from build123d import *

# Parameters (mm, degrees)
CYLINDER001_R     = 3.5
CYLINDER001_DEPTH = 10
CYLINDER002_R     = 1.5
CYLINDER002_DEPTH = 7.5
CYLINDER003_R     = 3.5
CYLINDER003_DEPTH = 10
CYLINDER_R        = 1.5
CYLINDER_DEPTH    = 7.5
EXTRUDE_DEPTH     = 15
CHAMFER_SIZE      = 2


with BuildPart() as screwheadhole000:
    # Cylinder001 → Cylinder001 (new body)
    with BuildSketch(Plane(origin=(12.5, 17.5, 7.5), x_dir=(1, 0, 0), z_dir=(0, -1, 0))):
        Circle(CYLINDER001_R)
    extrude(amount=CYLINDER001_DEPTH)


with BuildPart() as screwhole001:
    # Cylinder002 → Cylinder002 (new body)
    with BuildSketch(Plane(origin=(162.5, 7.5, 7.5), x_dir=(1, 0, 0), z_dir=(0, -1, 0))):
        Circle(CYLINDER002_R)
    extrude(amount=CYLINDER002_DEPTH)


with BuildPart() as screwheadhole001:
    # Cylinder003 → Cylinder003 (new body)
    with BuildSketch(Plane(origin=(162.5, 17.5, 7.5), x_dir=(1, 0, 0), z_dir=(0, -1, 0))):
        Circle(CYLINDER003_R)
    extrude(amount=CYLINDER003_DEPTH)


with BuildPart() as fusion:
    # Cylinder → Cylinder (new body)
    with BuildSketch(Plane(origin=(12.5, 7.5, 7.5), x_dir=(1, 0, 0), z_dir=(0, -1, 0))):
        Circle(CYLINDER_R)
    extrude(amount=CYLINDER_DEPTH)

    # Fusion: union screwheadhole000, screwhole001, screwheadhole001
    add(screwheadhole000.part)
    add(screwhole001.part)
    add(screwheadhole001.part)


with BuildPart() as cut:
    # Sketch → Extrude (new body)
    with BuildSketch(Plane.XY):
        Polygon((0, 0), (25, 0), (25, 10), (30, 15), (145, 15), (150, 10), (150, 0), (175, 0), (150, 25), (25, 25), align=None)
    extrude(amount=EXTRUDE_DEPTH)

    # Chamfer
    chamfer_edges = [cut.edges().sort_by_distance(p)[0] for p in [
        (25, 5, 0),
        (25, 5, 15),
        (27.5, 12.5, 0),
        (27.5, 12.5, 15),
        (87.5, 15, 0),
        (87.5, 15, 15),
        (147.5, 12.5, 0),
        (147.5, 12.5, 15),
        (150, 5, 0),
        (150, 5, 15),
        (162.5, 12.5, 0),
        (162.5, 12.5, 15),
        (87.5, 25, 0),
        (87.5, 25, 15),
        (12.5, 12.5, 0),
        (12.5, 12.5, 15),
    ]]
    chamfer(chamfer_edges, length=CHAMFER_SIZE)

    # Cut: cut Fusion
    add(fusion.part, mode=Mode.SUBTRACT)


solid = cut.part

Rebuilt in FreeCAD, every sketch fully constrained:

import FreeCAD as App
import Part
import Sketcher
from FreeCAD import Vector


def edges_at(feature, points):
    """Names of the edges that pass closest to the given points."""
    edges = feature.Shape.Edges
    near = lambda p: min(range(len(edges)), key=lambda i: edges[i].distToShape(Part.Vertex(*p))[0])
    return sorted({f"Edge{near(p) + 1}" for p in points})

doc = App.newDocument("Part")
params = doc.addObject("Spreadsheet::Sheet", "Params")
for row, (alias, value) in enumerate([
    ("sketch1_diameter", "7 mm"),
    ("pad1_length", "10 mm"),
    ("sketch2_diameter", "3 mm"),
    ("pad2_length", "7.5 mm"),
    ("sketch3_diameter", "7 mm"),
    ("pad3_length", "10 mm"),
    ("sketch4_diameter", "3 mm"),
    ("pad4_length", "7.5 mm"),
    ("sketch5_width", "25 mm"),
    ("sketch5_width2", "115 mm"),
    ("sketch5_width3", "125 mm"),
    ("sketch5_height", "10 mm"),
    ("pad5_length", "15 mm"),
    ("chamfer_size", "2 mm"),
], start=1):
    params.set(f"A{row}", alias)
    params.set(f"B{row}", "=" + value)
    params.setAlias(f"B{row}", alias)

body = doc.addObject("PartDesign::Body", "Body")

# Sketch on XZ plane
sketch1 = body.newObject("Sketcher::SketchObject", "Sketch")
sketch1.AttachmentSupport = (doc.getObject("XZ_Plane"), [""])
sketch1.MapMode = "FlatFace"
sketch1.AttachmentOffset = App.Placement(Vector(0, 0, -17.5), App.Rotation())
sketch1.addGeometry(Part.Circle(Vector(12.5, 7.5, 0), Vector(0, 0, 1), 3.5), False)
sketch1.addConstraint(Sketcher.Constraint("Diameter", 0, 7.0))
sketch1.addConstraint(Sketcher.Constraint("DistanceX", -1, 1, 0, 3, 12.5))
sketch1.addConstraint(Sketcher.Constraint("DistanceY", -1, 1, 0, 3, 7.5))
sketch1.setExpression("Constraints[0]", "Params.sketch1_diameter")
pad1 = body.newObject("PartDesign::Pad", "Pad")
pad1.Profile = sketch1
pad1.setExpression("Length", "Params.pad1_length")
body2 = doc.addObject("PartDesign::Body", "Body001")

# Sketch on XZ plane
sketch2 = body2.newObject("Sketcher::SketchObject", "Sketch001")
sketch2.AttachmentSupport = (doc.getObject("XZ_Plane001"), [""])
sketch2.MapMode = "FlatFace"
sketch2.AttachmentOffset = App.Placement(Vector(0, 0, -7.5), App.Rotation())
sketch2.addGeometry(Part.Circle(Vector(162.5, 7.5, 0), Vector(0, 0, 1), 1.5), False)
sketch2.addConstraint(Sketcher.Constraint("Diameter", 0, 3.0))
sketch2.addConstraint(Sketcher.Constraint("DistanceX", -1, 1, 0, 3, 162.5))
sketch2.addConstraint(Sketcher.Constraint("DistanceY", -1, 1, 0, 3, 7.5))
sketch2.setExpression("Constraints[0]", "Params.sketch2_diameter")
pad2 = body2.newObject("PartDesign::Pad", "Pad001")
pad2.Profile = sketch2
pad2.setExpression("Length", "Params.pad2_length")
body3 = doc.addObject("PartDesign::Body", "Body002")

# Sketch on XZ plane
sketch3 = body3.newObject("Sketcher::SketchObject", "Sketch002")
sketch3.AttachmentSupport = (doc.getObject("XZ_Plane002"), [""])
sketch3.MapMode = "FlatFace"
sketch3.AttachmentOffset = App.Placement(Vector(0, 0, -17.5), App.Rotation())
sketch3.addGeometry(Part.Circle(Vector(162.5, 7.5, 0), Vector(0, 0, 1), 3.5), False)
sketch3.addConstraint(Sketcher.Constraint("Diameter", 0, 7.0))
sketch3.addConstraint(Sketcher.Constraint("DistanceX", -1, 1, 0, 3, 162.5))
sketch3.addConstraint(Sketcher.Constraint("DistanceY", -1, 1, 0, 3, 7.5))
sketch3.setExpression("Constraints[0]", "Params.sketch3_diameter")
pad3 = body3.newObject("PartDesign::Pad", "Pad002")
pad3.Profile = sketch3
pad3.setExpression("Length", "Params.pad3_length")
body4 = doc.addObject("PartDesign::Body", "Body003")
body4.AllowCompound = True

# Sketch on XZ plane
sketch4 = body4.newObject("Sketcher::SketchObject", "Sketch003")
sketch4.AttachmentSupport = (doc.getObject("XZ_Plane003"), [""])
sketch4.MapMode = "FlatFace"
sketch4.AttachmentOffset = App.Placement(Vector(0, 0, -7.5), App.Rotation())
sketch4.addGeometry(Part.Circle(Vector(12.5, 7.5, 0), Vector(0, 0, 1), 1.5), False)
sketch4.addConstraint(Sketcher.Constraint("Diameter", 0, 3.0))
sketch4.addConstraint(Sketcher.Constraint("DistanceX", -1, 1, 0, 3, 12.5))
sketch4.addConstraint(Sketcher.Constraint("DistanceY", -1, 1, 0, 3, 7.5))
sketch4.setExpression("Constraints[0]", "Params.sketch4_diameter")
pad4 = body4.newObject("PartDesign::Pad", "Pad003")
pad4.Profile = sketch4
pad4.setExpression("Length", "Params.pad4_length")
doc.recompute()

boolean = body4.newObject("PartDesign::Boolean", "Boolean")
boolean.Type = "Fuse"
boolean.addObjects([body])
doc.recompute()

boolean2 = body4.newObject("PartDesign::Boolean", "Boolean001")
boolean2.Type = "Fuse"
boolean2.addObjects([body2])
doc.recompute()

boolean3 = body4.newObject("PartDesign::Boolean", "Boolean002")
boolean3.Type = "Fuse"
boolean3.addObjects([body3])
body5 = doc.addObject("PartDesign::Body", "Body004")

# Sketch on XY plane
sketch5 = body5.newObject("Sketcher::SketchObject", "Sketch004")
sketch5.AttachmentSupport = (doc.getObject("XY_Plane004"), [""])
sketch5.MapMode = "FlatFace"
sketch5.addGeometry(Part.LineSegment(Vector(0, 0, 0), Vector(25, 0, 0)), False)
sketch5.addGeometry(Part.LineSegment(Vector(25, 0, 0), Vector(25, 10, 0)), False)
sketch5.addGeometry(Part.LineSegment(Vector(25, 10, 0), Vector(30, 15, 0)), False)
sketch5.addGeometry(Part.LineSegment(Vector(30, 15, 0), Vector(145, 15, 0)), False)
sketch5.addGeometry(Part.LineSegment(Vector(145, 15, 0), Vector(150, 10, 0)), False)
sketch5.addGeometry(Part.LineSegment(Vector(150, 10, 0), Vector(150, 0, 0)), False)
sketch5.addGeometry(Part.LineSegment(Vector(150, 0, 0), Vector(175, 0, 0)), False)
sketch5.addGeometry(Part.LineSegment(Vector(175, 0, 0), Vector(150, 25, 0)), False)
sketch5.addGeometry(Part.LineSegment(Vector(150, 25, 0), Vector(25, 25, 0)), False)
sketch5.addGeometry(Part.LineSegment(Vector(25, 25, 0), Vector(0, 0, 0)), False)
sketch5.addConstraint(Sketcher.Constraint("Coincident", 0, 2, 1, 1))
sketch5.addConstraint(Sketcher.Constraint("Coincident", 1, 2, 2, 1))
sketch5.addConstraint(Sketcher.Constraint("Coincident", 2, 2, 3, 1))
sketch5.addConstraint(Sketcher.Constraint("Coincident", 3, 2, 4, 1))
sketch5.addConstraint(Sketcher.Constraint("Coincident", 4, 2, 5, 1))
sketch5.addConstraint(Sketcher.Constraint("Coincident", 5, 2, 6, 1))
sketch5.addConstraint(Sketcher.Constraint("Coincident", 6, 2, 7, 1))
sketch5.addConstraint(Sketcher.Constraint("Coincident", 7, 2, 8, 1))
sketch5.addConstraint(Sketcher.Constraint("Coincident", 8, 2, 9, 1))
sketch5.addConstraint(Sketcher.Constraint("Coincident", 9, 2, 0, 1))
sketch5.addConstraint(Sketcher.Constraint("Horizontal", 0))
sketch5.addConstraint(Sketcher.Constraint("Vertical", 1))
sketch5.addConstraint(Sketcher.Constraint("Horizontal", 3))
sketch5.addConstraint(Sketcher.Constraint("Vertical", 5))
sketch5.addConstraint(Sketcher.Constraint("Horizontal", 6))
sketch5.addConstraint(Sketcher.Constraint("Horizontal", 8))
sketch5.addConstraint(Sketcher.Constraint("Coincident", 9, 2, -1, 1))
sketch5.addConstraint(Sketcher.Constraint("PointOnObject", 5, 2, -1))
sketch5.addConstraint(Sketcher.Constraint("Perpendicular", 2, 4))
sketch5.addConstraint(Sketcher.Constraint("Parallel", 4, 7))
sketch5.addConstraint(Sketcher.Constraint("Perpendicular", 7, 9))
sketch5.addConstraint(Sketcher.Constraint("Horizontal", 1, 2, 4, 2))
sketch5.addConstraint(Sketcher.Constraint("Vertical", 5, 2, 7, 2))
sketch5.addConstraint(Sketcher.Constraint("Vertical", 1, 2, 8, 2))
sketch5.addConstraint(Sketcher.Constraint("Equal", 0, 6))
sketch5.addConstraint(Sketcher.Constraint("DistanceX", 0, 1, 0, 2, 25.0))
sketch5.addConstraint(Sketcher.Constraint("DistanceX", 3, 1, 3, 2, 115.0))
sketch5.addConstraint(Sketcher.Constraint("DistanceX", 8, 2, 8, 1, 125.0))
sketch5.addConstraint(Sketcher.Constraint("DistanceY", 1, 1, 1, 2, 10.0))
sketch5.setExpression("Constraints[25]", "Params.sketch5_width")
sketch5.setExpression("Constraints[26]", "Params.sketch5_width2")
sketch5.setExpression("Constraints[27]", "Params.sketch5_width3")
sketch5.setExpression("Constraints[28]", "Params.sketch5_height")
pad5 = body5.newObject("PartDesign::Pad", "Pad004")
pad5.Profile = sketch5
pad5.setExpression("Length", "Params.pad5_length")
doc.recompute()

chamfer = body5.newObject("PartDesign::Chamfer", "Chamfer")
chamfer.Base = (pad5, edges_at(pad5, [
    (25, 5, 0),
    (25, 5, 15),
    (27.5, 12.5, 0),
    (27.5, 12.5, 15),
    (87.5, 15, 0),
    (87.5, 15, 15),
    (147.5, 12.5, 0),
    (147.5, 12.5, 15),
    (150, 5, 0),
    (150, 5, 15),
    (162.5, 12.5, 0),
    (162.5, 12.5, 15),
    (87.5, 25, 0),
    (87.5, 25, 15),
    (12.5, 12.5, 0),
    (12.5, 12.5, 15),
]))
chamfer.setExpression("Size", "Params.chamfer_size")
doc.recompute()

boolean4 = body5.newObject("PartDesign::Boolean", "Boolean003")
boolean4.Type = "Cut"
boolean4.addObjects([body4])

doc.recompute()
